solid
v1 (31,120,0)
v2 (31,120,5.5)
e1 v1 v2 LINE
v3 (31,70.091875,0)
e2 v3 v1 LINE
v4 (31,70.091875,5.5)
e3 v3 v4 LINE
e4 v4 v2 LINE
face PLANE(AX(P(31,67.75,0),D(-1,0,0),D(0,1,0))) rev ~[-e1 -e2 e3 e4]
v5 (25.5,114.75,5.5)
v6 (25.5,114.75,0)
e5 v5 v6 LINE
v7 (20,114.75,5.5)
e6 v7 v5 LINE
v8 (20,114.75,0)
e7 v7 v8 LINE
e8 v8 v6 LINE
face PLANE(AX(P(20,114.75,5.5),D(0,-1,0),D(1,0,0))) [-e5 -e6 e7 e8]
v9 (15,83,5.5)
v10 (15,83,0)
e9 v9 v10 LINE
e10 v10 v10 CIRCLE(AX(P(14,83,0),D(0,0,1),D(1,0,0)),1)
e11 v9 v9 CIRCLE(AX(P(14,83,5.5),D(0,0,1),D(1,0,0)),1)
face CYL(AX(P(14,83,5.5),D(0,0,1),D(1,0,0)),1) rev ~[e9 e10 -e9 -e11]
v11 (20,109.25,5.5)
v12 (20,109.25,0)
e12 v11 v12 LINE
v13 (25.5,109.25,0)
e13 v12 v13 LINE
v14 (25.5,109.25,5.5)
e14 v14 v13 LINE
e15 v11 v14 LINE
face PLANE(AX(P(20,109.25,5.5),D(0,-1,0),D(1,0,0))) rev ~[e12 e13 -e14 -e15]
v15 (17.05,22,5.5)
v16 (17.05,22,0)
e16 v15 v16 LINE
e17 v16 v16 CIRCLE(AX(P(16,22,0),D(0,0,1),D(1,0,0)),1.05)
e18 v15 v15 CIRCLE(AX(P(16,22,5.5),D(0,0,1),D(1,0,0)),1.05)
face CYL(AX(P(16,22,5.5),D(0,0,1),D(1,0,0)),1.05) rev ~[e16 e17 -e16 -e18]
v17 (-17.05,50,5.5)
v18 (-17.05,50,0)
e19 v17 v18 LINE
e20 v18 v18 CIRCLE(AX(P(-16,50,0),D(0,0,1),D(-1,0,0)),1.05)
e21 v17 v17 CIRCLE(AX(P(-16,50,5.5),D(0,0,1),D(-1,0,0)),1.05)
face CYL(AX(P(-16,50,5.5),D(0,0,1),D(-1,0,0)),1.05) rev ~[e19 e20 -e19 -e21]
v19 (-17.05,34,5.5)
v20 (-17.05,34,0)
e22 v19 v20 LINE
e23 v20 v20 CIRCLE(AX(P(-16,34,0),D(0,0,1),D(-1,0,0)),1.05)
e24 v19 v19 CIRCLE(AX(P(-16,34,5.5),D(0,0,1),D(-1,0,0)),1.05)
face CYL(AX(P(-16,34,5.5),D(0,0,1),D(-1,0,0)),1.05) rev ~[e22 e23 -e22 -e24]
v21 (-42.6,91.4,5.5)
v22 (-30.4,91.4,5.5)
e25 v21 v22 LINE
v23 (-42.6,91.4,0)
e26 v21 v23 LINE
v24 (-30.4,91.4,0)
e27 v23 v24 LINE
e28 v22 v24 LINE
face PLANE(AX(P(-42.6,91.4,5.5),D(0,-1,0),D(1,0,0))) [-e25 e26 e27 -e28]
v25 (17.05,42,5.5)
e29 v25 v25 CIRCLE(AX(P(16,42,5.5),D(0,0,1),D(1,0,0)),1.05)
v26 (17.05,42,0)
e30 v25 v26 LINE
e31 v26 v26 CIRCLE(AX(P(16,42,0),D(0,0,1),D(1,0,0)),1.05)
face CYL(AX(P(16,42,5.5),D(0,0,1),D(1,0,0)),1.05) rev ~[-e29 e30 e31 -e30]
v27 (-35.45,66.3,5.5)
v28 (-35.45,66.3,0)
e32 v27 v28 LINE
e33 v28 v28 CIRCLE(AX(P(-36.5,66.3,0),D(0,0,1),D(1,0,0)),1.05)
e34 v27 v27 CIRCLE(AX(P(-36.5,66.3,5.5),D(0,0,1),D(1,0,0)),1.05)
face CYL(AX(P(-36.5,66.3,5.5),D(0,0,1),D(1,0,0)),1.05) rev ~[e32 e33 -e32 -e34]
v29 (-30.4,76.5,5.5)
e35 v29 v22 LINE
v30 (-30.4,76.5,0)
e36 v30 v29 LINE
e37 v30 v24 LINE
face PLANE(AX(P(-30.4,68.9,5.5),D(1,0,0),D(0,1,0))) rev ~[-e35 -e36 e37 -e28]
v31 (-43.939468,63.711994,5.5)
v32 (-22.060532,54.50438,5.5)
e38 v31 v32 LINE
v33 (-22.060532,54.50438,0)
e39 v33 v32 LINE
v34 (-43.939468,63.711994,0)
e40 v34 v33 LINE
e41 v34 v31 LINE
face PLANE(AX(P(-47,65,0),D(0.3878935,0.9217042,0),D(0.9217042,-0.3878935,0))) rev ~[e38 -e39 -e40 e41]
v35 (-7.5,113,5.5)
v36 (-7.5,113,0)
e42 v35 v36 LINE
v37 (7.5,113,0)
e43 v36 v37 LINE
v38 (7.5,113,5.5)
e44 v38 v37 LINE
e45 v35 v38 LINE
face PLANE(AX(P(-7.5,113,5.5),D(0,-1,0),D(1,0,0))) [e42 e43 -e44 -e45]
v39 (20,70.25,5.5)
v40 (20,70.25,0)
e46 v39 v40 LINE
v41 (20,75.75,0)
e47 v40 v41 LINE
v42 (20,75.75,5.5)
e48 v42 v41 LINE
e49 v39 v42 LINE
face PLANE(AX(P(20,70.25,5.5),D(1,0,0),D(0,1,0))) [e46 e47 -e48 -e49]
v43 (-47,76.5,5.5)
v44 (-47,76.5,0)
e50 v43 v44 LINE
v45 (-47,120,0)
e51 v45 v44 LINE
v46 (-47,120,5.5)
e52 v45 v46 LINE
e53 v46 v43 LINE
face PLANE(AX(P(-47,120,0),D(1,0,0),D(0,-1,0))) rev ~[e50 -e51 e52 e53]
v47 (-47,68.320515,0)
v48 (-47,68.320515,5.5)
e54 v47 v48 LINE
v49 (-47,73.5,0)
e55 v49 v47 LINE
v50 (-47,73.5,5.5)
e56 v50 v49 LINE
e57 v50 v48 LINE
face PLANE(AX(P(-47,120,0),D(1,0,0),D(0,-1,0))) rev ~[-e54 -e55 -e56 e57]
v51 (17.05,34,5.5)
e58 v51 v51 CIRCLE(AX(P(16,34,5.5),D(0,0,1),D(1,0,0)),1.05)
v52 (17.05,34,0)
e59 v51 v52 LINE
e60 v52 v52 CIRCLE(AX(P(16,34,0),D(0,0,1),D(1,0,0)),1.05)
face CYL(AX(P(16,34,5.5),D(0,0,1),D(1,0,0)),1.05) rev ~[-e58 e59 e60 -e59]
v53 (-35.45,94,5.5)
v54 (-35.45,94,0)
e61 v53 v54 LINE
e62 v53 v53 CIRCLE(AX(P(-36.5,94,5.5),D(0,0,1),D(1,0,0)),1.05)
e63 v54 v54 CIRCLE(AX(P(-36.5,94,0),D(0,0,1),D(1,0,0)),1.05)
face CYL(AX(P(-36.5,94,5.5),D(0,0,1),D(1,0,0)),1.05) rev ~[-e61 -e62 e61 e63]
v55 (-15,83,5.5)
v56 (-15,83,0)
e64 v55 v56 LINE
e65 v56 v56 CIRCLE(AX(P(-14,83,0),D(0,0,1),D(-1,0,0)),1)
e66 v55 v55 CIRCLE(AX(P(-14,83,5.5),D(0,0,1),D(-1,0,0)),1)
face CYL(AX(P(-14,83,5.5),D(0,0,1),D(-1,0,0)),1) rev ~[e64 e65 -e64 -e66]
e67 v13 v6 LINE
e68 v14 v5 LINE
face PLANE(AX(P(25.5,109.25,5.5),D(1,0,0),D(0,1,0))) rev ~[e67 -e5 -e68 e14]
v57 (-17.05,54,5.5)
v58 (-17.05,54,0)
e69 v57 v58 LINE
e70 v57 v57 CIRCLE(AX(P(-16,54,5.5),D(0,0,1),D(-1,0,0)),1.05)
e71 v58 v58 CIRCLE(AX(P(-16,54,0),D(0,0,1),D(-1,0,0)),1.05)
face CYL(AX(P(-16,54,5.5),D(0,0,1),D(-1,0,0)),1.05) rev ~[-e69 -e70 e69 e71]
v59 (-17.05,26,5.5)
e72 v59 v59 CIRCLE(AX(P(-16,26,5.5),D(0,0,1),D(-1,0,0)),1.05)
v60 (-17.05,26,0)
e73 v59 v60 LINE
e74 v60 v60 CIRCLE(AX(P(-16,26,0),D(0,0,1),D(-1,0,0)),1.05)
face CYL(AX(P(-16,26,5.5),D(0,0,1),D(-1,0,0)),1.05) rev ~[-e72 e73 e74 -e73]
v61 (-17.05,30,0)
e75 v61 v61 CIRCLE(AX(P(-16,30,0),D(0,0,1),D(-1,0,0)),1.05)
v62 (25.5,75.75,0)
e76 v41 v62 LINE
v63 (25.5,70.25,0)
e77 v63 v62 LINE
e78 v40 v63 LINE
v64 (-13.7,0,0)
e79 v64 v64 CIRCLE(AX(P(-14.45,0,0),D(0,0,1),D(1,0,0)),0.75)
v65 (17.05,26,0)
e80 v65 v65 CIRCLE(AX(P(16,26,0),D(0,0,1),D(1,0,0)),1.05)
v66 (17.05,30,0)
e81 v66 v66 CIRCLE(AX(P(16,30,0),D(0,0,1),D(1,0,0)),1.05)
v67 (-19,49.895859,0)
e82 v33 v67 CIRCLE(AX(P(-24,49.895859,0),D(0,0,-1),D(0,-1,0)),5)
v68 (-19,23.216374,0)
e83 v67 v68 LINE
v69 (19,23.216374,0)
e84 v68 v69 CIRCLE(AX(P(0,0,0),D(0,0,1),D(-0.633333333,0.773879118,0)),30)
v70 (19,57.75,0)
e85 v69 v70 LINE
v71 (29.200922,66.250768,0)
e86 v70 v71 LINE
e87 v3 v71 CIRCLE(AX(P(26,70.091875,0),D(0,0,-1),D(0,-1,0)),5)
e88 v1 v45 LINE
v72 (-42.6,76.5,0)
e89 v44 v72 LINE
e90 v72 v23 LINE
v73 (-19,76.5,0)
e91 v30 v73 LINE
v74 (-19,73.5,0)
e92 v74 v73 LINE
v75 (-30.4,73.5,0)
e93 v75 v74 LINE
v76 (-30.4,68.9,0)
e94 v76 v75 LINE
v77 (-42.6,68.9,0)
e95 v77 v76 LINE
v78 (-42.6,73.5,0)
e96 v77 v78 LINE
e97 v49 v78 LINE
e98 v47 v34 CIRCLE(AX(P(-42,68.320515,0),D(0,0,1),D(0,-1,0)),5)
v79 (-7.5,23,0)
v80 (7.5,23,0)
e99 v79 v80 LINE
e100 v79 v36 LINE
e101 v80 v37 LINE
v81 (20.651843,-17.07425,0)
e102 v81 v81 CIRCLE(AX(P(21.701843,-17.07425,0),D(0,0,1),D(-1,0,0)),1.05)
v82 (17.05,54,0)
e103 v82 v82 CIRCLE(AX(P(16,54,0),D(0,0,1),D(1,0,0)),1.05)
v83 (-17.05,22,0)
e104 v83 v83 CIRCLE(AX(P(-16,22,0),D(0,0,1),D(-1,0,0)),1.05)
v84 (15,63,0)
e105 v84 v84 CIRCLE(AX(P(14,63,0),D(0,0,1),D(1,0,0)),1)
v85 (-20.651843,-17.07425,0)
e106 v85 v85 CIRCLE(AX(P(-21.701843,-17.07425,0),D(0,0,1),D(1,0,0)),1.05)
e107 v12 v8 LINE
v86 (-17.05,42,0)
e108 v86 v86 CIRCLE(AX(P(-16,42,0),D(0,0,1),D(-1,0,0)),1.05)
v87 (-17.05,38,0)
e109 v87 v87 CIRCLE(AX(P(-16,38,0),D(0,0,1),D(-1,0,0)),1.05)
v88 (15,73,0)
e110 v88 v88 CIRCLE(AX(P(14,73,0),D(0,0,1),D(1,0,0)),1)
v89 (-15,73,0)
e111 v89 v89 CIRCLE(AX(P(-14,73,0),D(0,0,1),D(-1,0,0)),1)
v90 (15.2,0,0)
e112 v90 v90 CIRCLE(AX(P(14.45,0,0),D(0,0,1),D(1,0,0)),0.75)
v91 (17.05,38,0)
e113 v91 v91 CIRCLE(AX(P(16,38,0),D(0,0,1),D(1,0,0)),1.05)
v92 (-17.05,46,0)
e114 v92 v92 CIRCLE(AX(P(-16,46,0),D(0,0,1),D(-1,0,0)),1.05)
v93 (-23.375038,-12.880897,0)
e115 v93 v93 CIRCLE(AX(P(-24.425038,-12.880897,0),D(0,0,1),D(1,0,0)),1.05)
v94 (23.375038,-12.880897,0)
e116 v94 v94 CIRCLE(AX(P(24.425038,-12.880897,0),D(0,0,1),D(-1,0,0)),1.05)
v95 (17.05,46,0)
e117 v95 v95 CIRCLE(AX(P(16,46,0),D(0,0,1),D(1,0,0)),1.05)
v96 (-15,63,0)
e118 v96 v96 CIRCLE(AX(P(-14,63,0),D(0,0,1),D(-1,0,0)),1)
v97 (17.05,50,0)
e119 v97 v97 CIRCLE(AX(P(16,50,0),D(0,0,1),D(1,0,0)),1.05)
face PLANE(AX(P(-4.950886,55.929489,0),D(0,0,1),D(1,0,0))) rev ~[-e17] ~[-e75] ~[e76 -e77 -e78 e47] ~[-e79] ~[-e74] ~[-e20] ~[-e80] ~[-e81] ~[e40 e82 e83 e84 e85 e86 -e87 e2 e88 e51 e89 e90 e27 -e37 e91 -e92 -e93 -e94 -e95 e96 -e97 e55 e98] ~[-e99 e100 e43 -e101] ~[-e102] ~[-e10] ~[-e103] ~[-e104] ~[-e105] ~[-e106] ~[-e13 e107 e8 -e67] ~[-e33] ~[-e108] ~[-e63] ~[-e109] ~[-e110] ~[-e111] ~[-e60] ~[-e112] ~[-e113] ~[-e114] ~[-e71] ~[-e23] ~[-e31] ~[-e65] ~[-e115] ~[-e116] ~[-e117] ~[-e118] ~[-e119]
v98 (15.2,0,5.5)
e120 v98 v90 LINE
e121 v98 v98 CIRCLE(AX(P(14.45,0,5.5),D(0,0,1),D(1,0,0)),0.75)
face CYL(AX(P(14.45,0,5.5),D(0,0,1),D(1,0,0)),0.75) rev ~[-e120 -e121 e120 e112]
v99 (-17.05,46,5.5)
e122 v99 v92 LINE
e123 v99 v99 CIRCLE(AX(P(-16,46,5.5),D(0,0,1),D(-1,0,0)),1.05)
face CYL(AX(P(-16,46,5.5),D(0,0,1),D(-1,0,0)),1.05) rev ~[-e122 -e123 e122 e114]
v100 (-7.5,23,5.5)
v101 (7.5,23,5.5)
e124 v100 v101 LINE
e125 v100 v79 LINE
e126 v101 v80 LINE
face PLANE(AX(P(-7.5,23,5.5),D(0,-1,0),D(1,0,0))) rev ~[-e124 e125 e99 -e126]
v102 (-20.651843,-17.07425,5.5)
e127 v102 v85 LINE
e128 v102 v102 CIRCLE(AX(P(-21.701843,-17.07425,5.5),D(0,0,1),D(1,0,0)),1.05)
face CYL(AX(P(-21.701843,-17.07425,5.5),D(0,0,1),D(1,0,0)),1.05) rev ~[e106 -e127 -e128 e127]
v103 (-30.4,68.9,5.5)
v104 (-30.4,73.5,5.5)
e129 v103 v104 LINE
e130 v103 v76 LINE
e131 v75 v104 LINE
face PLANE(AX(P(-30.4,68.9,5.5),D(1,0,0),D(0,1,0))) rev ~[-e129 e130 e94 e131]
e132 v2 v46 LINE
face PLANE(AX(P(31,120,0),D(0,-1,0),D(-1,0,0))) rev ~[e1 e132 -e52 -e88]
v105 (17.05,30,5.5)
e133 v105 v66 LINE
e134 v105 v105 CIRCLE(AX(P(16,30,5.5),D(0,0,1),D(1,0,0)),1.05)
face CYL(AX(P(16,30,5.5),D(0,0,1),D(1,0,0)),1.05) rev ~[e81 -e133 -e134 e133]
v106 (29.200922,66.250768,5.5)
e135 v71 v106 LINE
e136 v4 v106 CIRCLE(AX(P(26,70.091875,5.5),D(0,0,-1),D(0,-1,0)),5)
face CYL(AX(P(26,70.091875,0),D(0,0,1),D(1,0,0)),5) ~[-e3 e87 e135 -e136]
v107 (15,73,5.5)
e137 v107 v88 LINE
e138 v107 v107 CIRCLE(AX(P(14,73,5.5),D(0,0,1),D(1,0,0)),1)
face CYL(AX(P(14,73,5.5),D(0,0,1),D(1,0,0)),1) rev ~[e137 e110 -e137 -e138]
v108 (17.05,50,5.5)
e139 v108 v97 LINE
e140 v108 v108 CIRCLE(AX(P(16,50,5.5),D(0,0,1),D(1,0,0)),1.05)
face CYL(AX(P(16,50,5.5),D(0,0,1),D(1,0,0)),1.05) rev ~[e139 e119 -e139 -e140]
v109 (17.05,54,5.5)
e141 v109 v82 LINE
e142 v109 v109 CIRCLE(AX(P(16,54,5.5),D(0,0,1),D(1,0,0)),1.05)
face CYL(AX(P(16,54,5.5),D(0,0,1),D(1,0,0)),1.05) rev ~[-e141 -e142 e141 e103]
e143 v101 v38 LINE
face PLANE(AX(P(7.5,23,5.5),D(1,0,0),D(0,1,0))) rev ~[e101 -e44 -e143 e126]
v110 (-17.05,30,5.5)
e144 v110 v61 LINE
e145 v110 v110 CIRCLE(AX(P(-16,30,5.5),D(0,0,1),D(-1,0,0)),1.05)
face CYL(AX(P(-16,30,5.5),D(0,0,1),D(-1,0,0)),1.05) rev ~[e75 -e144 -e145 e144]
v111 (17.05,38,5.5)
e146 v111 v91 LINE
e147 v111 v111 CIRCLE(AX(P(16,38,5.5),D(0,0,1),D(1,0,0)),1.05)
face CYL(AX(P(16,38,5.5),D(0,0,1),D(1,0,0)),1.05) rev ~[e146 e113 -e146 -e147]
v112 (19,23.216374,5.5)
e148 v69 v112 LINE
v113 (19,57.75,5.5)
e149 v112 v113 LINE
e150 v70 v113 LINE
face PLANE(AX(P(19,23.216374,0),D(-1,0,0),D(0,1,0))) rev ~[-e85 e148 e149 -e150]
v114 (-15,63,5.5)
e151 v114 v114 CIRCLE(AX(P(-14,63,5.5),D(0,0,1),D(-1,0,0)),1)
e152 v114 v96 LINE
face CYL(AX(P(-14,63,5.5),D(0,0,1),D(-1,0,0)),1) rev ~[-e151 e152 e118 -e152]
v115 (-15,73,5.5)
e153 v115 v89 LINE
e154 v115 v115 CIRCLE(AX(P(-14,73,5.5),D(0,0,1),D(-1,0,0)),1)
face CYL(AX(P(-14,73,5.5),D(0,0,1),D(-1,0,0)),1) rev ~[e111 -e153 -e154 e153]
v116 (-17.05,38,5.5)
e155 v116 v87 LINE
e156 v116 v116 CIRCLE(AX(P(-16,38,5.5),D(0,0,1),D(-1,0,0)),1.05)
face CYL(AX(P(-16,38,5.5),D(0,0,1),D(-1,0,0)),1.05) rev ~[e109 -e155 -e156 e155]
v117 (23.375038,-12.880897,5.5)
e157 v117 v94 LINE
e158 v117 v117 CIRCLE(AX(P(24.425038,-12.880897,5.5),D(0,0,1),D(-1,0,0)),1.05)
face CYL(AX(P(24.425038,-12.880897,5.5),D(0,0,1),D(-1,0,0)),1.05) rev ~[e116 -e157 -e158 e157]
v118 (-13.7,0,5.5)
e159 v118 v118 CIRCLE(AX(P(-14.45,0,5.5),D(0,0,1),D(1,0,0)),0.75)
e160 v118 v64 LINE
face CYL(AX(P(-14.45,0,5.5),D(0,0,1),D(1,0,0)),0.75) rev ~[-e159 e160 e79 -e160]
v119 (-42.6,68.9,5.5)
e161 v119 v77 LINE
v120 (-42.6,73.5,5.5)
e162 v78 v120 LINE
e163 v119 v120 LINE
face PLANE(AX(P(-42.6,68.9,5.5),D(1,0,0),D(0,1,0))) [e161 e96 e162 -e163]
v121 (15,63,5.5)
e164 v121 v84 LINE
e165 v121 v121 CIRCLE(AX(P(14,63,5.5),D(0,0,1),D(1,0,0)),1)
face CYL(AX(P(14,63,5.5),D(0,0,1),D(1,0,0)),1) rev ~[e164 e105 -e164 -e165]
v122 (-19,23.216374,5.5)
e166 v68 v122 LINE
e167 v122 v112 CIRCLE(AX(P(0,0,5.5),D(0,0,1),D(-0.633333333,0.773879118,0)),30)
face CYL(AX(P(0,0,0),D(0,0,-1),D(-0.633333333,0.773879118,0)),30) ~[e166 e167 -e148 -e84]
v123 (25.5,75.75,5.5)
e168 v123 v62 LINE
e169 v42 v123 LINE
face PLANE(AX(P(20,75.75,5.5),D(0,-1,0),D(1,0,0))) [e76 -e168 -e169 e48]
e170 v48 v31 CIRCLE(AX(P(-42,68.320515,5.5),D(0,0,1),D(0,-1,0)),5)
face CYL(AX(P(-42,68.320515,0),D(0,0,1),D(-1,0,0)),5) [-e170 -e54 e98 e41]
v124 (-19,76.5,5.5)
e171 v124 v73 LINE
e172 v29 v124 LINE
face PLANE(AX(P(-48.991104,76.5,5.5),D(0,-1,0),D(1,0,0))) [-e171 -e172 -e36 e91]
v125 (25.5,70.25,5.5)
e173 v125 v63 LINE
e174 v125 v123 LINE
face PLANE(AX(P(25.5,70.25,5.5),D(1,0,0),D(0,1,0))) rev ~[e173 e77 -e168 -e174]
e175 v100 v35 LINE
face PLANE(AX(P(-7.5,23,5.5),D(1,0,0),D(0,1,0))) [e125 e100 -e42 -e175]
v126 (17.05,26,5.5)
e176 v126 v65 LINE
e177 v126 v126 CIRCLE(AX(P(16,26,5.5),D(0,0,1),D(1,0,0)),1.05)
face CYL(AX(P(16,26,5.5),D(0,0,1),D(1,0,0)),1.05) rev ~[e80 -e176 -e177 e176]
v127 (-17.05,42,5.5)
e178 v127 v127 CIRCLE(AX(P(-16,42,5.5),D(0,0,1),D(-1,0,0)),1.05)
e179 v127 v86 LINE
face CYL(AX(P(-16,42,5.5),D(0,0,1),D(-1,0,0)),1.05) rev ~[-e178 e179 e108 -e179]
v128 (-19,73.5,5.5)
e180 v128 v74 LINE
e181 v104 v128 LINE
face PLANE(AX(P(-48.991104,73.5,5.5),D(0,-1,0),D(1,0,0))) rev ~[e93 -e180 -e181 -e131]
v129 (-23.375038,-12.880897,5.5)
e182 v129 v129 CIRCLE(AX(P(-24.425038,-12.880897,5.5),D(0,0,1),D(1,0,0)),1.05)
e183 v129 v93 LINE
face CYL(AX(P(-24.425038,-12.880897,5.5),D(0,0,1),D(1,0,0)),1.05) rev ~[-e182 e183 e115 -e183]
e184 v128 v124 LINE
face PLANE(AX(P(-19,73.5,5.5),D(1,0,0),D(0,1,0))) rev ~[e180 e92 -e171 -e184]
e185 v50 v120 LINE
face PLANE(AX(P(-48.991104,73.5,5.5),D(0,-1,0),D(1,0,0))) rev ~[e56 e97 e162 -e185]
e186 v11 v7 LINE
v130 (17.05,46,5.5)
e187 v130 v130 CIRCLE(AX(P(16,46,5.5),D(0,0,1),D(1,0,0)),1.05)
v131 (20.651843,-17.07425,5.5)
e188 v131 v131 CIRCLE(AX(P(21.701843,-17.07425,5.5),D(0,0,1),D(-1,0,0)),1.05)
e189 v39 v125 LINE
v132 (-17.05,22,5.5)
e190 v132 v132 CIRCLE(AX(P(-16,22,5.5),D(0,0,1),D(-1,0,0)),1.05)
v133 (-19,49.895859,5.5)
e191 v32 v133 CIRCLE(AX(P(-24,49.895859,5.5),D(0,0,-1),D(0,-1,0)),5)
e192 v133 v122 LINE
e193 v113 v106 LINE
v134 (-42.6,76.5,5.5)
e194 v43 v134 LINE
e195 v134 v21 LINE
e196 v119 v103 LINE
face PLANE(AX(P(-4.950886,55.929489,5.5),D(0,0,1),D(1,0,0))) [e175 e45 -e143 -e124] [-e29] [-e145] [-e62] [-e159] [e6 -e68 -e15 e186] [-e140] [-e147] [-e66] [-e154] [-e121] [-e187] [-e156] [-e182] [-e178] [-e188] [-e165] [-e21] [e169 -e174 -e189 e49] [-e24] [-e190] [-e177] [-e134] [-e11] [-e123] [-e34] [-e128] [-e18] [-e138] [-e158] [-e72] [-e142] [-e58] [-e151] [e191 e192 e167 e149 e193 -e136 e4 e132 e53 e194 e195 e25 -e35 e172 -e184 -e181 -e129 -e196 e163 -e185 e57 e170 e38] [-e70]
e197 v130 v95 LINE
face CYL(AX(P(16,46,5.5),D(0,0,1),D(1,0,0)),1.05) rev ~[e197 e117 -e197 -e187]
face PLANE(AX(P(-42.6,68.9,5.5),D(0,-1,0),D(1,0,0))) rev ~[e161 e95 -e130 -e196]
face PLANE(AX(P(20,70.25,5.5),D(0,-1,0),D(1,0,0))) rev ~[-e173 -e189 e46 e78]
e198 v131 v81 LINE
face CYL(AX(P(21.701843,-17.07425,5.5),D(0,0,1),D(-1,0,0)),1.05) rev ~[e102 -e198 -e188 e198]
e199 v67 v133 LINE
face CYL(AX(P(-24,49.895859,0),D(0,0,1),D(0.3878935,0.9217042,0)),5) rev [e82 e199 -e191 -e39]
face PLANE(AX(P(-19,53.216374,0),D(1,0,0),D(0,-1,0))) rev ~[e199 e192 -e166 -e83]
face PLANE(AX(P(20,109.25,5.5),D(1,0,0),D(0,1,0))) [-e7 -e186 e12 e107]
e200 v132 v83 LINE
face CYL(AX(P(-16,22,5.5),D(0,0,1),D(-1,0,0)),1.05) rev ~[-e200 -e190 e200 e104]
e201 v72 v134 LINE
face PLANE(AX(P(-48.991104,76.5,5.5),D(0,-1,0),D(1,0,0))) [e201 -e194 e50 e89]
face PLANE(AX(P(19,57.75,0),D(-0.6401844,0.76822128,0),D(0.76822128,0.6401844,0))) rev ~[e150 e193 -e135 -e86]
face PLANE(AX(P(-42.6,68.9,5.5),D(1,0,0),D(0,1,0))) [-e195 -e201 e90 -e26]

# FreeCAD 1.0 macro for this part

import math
import FreeCAD as App
import Part
import Sketcher
Q = App.Units.Quantity


def edges_at(feature, points):
    """Names of the edges that pass closest to the given points."""
    edges = feature.Shape.Edges
    near = lambda p: min(range(len(edges)), key=lambda i: edges[i].distToShape(Part.Vertex(*p))[0])
    return sorted({f"Edge{near(p) + 1}" for p in points})

doc = App.newDocument("Part")
body = doc.addObject("PartDesign::Body", "Body")

# Sketch on XY plane
sketch1 = doc.addObject("Sketcher::SketchObject", "Sketch")
body.addObject(sketch1)
sketch1.AttachmentSupport = (doc.XY_Plane, [""])
sketch1.MapMode = "FlatFace"
sketch1.addGeometry(Part.LineSegment(App.Vector(31, 120, 0), App.Vector(-47, 120, 0)), False)
sketch1.addGeometry(Part.LineSegment(App.Vector(-47, 120, 0), App.Vector(-47, 65, 0)), False)
sketch1.addGeometry(Part.LineSegment(App.Vector(-47, 65, 0), App.Vector(-19, 53, 0)), False)
sketch1.addGeometry(Part.LineSegment(App.Vector(-19, 53, 0), App.Vector(-19, 23, 0)), False)
sketch1.addGeometry(Part.ArcOfCircle(Part.Circle(App.Vector(0, 0, 0), App.Vector(0, 0, 1), 30), math.radians(129), math.radians(411)), False)
sketch1.addGeometry(Part.LineSegment(App.Vector(19, 23, 0), App.Vector(19, 58, 0)), False)
sketch1.addGeometry(Part.LineSegment(App.Vector(19, 58, 0), App.Vector(31, 68, 0)), False)
sketch1.addGeometry(Part.LineSegment(App.Vector(31, 68, 0), App.Vector(31, 120, 0)), False)
sketch1.addConstraint(Sketcher.Constraint("Coincident", 0, 2, 1, 1))
sketch1.addConstraint(Sketcher.Constraint("Coincident", 1, 2, 2, 1))
sketch1.addConstraint(Sketcher.Constraint("Coincident", 2, 2, 3, 1))
sketch1.addConstraint(Sketcher.Constraint("Coincident", 3, 2, 4, 1))
sketch1.addConstraint(Sketcher.Constraint("Coincident", 4, 2, 5, 1))
sketch1.addConstraint(Sketcher.Constraint("Coincident", 5, 2, 6, 1))
sketch1.addConstraint(Sketcher.Constraint("Coincident", 6, 2, 7, 1))
sketch1.addConstraint(Sketcher.Constraint("Coincident", 7, 2, 0, 1))
sketch1.addConstraint(Sketcher.Constraint("Horizontal", 0))
sketch1.addConstraint(Sketcher.Constraint("Vertical", 1))
sketch1.addConstraint(Sketcher.Constraint("Vertical", 3))
sketch1.addConstraint(Sketcher.Constraint("Vertical", 5))
sketch1.addConstraint(Sketcher.Constraint("Vertical", 7))
sketch1.addConstraint(Sketcher.Constraint("Coincident", 4, 3, -1, 1))
sketch1.addConstraint(Sketcher.Constraint("Horizontal", 3, 2, 4, 2))
sketch1.addConstraint(Sketcher.Constraint("Radius", 4, Q("30 mm")))
sketch1.addConstraint(Sketcher.Constraint("DistanceX", 0, 2, 0, 1, Q("78 mm")))
sketch1.addConstraint(Sketcher.Constraint("DistanceY", 1, 2, 1, 1, Q("55 mm")))
sketch1.addConstraint(Sketcher.Constraint("DistanceY", 3, 2, 3, 1, Q("30 mm")))
sketch1.addConstraint(Sketcher.Constraint("DistanceX", 0, 2, -1, 1, Q("47 mm")))
sketch1.addConstraint(Sketcher.Constraint("DistanceY", -1, 1, 0, 2, Q("120 mm")))
sketch1.addConstraint(Sketcher.Constraint("DistanceX", 2, 2, -1, 1, Q("19 mm")))
sketch1.addConstraint(Sketcher.Constraint("DistanceY", 5, 2, 6, 2, Q("10 mm")))
sketch1.addConstraint(Sketcher.Constraint("DistanceY", 7, 1, 7, 2, Q("52.25 mm")))
pad1 = doc.addObject("PartDesign::Pad", "Pad")
body.addObject(pad1)
pad1.Profile = sketch1
pad1.Length = 5.5

# Sketch on XY plane
sketch2 = doc.addObject("Sketcher::SketchObject", "Sketch001")
body.addObject(sketch2)
sketch2.AttachmentSupport = (doc.XY_Plane, [""])
sketch2.MapMode = "FlatFace"
sketch2.AttachmentOffset = App.Placement(App.Vector(0, 0, 5.5), App.Rotation())
sketch2.addGeometry(Part.Circle(App.Vector(14, 63, 0), App.Vector(0, 0, 1), 1), False)
sketch2.addGeometry(Part.Circle(App.Vector(14, 83, 0), App.Vector(0, 0, 1), 1), False)
sketch2.addGeometry(Part.Circle(App.Vector(14, 73, 0), App.Vector(0, 0, 1), 1), False)
sketch2.addGeometry(Part.Circle(App.Vector(-14, 83, 0), App.Vector(0, 0, 1), 1), False)
sketch2.addGeometry(Part.Circle(App.Vector(-14, 73, 0), App.Vector(0, 0, 1), 1), False)
sketch2.addGeometry(Part.Circle(App.Vector(-14, 63, 0), App.Vector(0, 0, 1), 1), False)
sketch2.addGeometry(Part.LineSegment(App.Vector(20, 114.8, 0), App.Vector(20, 109.2, 0)), False)
sketch2.addGeometry(Part.LineSegment(App.Vector(20, 109.2, 0), App.Vector(25.5, 109.2, 0)), False)
sketch2.addGeometry(Part.LineSegment(App.Vector(25.5, 109.2, 0), App.Vector(25.5, 114.8, 0)), False)
sketch2.addGeometry(Part.LineSegment(App.Vector(25.5, 114.8, 0), App.Vector(20, 114.8, 0)), False)
sketch2.addGeometry(Part.LineSegment(App.Vector(20, 75.8, 0), App.Vector(20, 70.2, 0)), False)
sketch2.addGeometry(Part.LineSegment(App.Vector(20, 70.2, 0), App.Vector(25.5, 70.2, 0)), False)
sketch2.addGeometry(Part.LineSegment(App.Vector(25.5, 70.2, 0), App.Vector(25.5, 75.8, 0)), False)
sketch2.addGeometry(Part.LineSegment(App.Vector(25.5, 75.8, 0), App.Vector(20, 75.8, 0)), False)
sketch2.addConstraint(Sketcher.Constraint("Coincident", 6, 2, 7, 1))
sketch2.addConstraint(Sketcher.Constraint("Coincident", 7, 2, 8, 1))
sketch2.addConstraint(Sketcher.Constraint("Coincident", 8, 2, 9, 1))
sketch2.addConstraint(Sketcher.Constraint("Coincident", 9, 2, 6, 1))
sketch2.addConstraint(Sketcher.Constraint("Coincident", 10, 2, 11, 1))
sketch2.addConstraint(Sketcher.Constraint("Coincident", 11, 2, 12, 1))
sketch2.addConstraint(Sketcher.Constraint("Coincident", 12, 2, 13, 1))
sketch2.addConstraint(Sketcher.Constraint("Coincident", 13, 2, 10, 1))
sketch2.addConstraint(Sketcher.Constraint("Vertical", 6))
sketch2.addConstraint(Sketcher.Constraint("Horizontal", 7))
sketch2.addConstraint(Sketcher.Constraint("Vertical", 8))
sketch2.addConstraint(Sketcher.Constraint("Horizontal", 9))
sketch2.addConstraint(Sketcher.Constraint("Vertical", 10))
sketch2.addConstraint(Sketcher.Constraint("Horizontal", 11))
sketch2.addConstraint(Sketcher.Constraint("Vertical", 12))
sketch2.addConstraint(Sketcher.Constraint("Horizontal", 13))
sketch2.addConstraint(Sketcher.Constraint("Equal", 0, 1))
sketch2.addConstraint(Sketcher.Constraint("Equal", 1, 2))
sketch2.addConstraint(Sketcher.Constraint("Equal", 2, 3))
sketch2.addConstraint(Sketcher.Constraint("Equal", 3, 4))
sketch2.addConstraint(Sketcher.Constraint("Equal", 4, 5))
sketch2.addConstraint(Sketcher.Constraint("Symmetric", 1, 3, 3, 3, -2))
sketch2.addConstraint(Sketcher.Constraint("Symmetric", 2, 3, 4, 3, -2))
sketch2.addConstraint(Sketcher.Constraint("Symmetric", 0, 3, 5, 3, -2))
sketch2.addConstraint(Sketcher.Constraint("Vertical", 0, 3, 1, 3))
sketch2.addConstraint(Sketcher.Constraint("Vertical", 1, 3, 2, 3))
sketch2.addConstraint(Sketcher.Constraint("Vertical", 9, 2, 10, 2))
sketch2.addConstraint(Sketcher.Constraint("Vertical", 8, 2, 11, 2))
sketch2.addConstraint(Sketcher.Constraint("Equal", 13, 6))
sketch2.addConstraint(Sketcher.Constraint("Equal", 8, 10))
sketch2.addConstraint(Sketcher.Constraint("Diameter", 0, Q("2 mm")))
sketch2.addConstraint(Sketcher.Constraint("DistanceX", 7, 1, 7, 2, Q("5.5 mm")))
sketch2.addConstraint(Sketcher.Constraint("DistanceX", -1, 1, 0, 3, Q("14 mm")))
sketch2.addConstraint(Sketcher.Constraint("DistanceY", -1, 1, 0, 3, Q("63 mm")))
sketch2.addConstraint(Sketcher.Constraint("DistanceY", -1, 1, 1, 3, Q("83 mm")))
sketch2.addConstraint(Sketcher.Constraint("DistanceY", -1, 1, 2, 3, Q("73 mm")))
sketch2.addConstraint(Sketcher.Constraint("DistanceX", -1, 1, 6, 2, Q("20 mm")))
sketch2.addConstraint(Sketcher.Constraint("DistanceY", 11, 2, 7, 2, Q("39 mm")))
sketch2.addConstraint(Sketcher.Constraint("DistanceY", -1, 1, 6, 2, Q("109.25 mm")))
pocket1 = doc.addObject("PartDesign::Pocket", "Pocket")
body.addObject(pocket1)
pocket1.Profile = sketch2
pocket1.Type = "ThroughAll"
doc.recompute()

fillet = doc.addObject("PartDesign::Fillet", "Fillet")
body.addObject(fillet)
fillet.Base = (pocket1, edges_at(pocket1, [(-47, 65, 2.75)]))
fillet.Radius = 5
doc.recompute()

fillet2 = doc.addObject("PartDesign::Fillet", "Fillet001")
body.addObject(fillet2)
fillet2.Base = (fillet, edges_at(fillet, [(-19, 53.216, 2.75)]))
fillet2.Radius = 5

# Sketch on XY plane
sketch3 = doc.addObject("Sketcher::SketchObject", "Sketch002")
body.addObject(sketch3)
sketch3.AttachmentSupport = (doc.XY_Plane, [""])
sketch3.MapMode = "FlatFace"
sketch3.AttachmentOffset = App.Placement(App.Vector(0, 0, 5.5), App.Rotation())
sketch3.addGeometry(Part.Circle(App.Vector(14.4, 0, 0), App.Vector(0, 0, 1), 0.8), False)
sketch3.addGeometry(Part.Circle(App.Vector(-14.4, 0, 0), App.Vector(0, 0, 1), 0.8), False)
sketch3.addConstraint(Sketcher.Constraint("Equal", 0, 1))
sketch3.addConstraint(Sketcher.Constraint("Symmetric", 0, 3, 1, 3, -1, 1))
sketch3.addConstraint(Sketcher.Constraint("PointOnObject", 0, 3, -1))
sketch3.addConstraint(Sketcher.Constraint("Diameter", 0, Q("1.5 mm")))
sketch3.addConstraint(Sketcher.Constraint("DistanceX", 1, 3, 0, 3, Q("28.9 mm")))
pocket2 = doc.addObject("PartDesign::Pocket", "Pocket001")
body.addObject(pocket2)
pocket2.Profile = sketch3
pocket2.Type = "ThroughAll"

# Sketch on XY plane
sketch4 = doc.addObject("Sketcher::SketchObject", "Sketch003")
body.addObject(sketch4)
sketch4.AttachmentSupport = (doc.XY_Plane, [""])
sketch4.MapMode = "FlatFace"
sketch4.AttachmentOffset = App.Placement(App.Vector(0, 0, 5.5), App.Rotation())
sketch4.addGeometry(Part.Circle(App.Vector(-24.4, -12.9, 0), App.Vector(0, 0, 1), 1.1), False)
sketch4.addGeometry(Part.Circle(App.Vector(-21.7, -17.1, 0), App.Vector(0, 0, 1), 1.1), False)
sketch4.addGeometry(Part.Circle(App.Vector(24.4, -12.9, 0), App.Vector(0, 0, 1), 1.1), False)
sketch4.addGeometry(Part.Circle(App.Vector(21.7, -17.1, 0), App.Vector(0, 0, 1), 1.1), False)
sketch4.addConstraint(Sketcher.Constraint("Equal", 0, 1))
sketch4.addConstraint(Sketcher.Constraint("Equal", 1, 2))
sketch4.addConstraint(Sketcher.Constraint("Equal", 2, 3))
sketch4.addConstraint(Sketcher.Constraint("Symmetric", 0, 3, 2, 3, -2))
sketch4.addConstraint(Sketcher.Constraint("Symmetric", 1, 3, 3, 3, -2))
sketch4.addConstraint(Sketcher.Constraint("Diameter", 0, Q("2.1 mm")))
sketch4.addConstraint(Sketcher.Constraint("DistanceX", 0, 3, -1, 1, Q("24.425038 mm")))
sketch4.addConstraint(Sketcher.Constraint("DistanceY", 1, 3, -1, 1, Q("17.07425 mm")))
sketch4.addConstraint(Sketcher.Constraint("DistanceX", 1, 3, 2, 3, Q("46.126881 mm")))
sketch4.addConstraint(Sketcher.Constraint("DistanceY", 0, 3, -1, 1, Q("12.880897 mm")))
pocket3 = doc.addObject("PartDesign::Pocket", "Pocket002")
body.addObject(pocket3)
pocket3.Profile = sketch4
pocket3.Type = "ThroughAll"

# Sketch on XY plane
sketch5 = doc.addObject("Sketcher::SketchObject", "Sketch004")
body.addObject(sketch5)
sketch5.AttachmentSupport = (doc.XY_Plane, [""])
sketch5.MapMode = "FlatFace"
sketch5.AttachmentOffset = App.Placement(App.Vector(0, 0, 5.5), App.Rotation())
sketch5.addGeometry(Part.LineSegment(App.Vector(-8, 113, 0), App.Vector(-8, 23, 0)), False)
sketch5.addGeometry(Part.LineSegment(App.Vector(-8, 23, 0), App.Vector(8, 23, 0)), False)
sketch5.addGeometry(Part.LineSegment(App.Vector(8, 23, 0), App.Vector(8, 113, 0)), False)
sketch5.addGeometry(Part.LineSegment(App.Vector(8, 113, 0), App.Vector(-8, 113, 0)), False)
sketch5.addConstraint(Sketcher.Constraint("Coincident", 0, 2, 1, 1))
sketch5.addConstraint(Sketcher.Constraint("Coincident", 1, 2, 2, 1))
sketch5.addConstraint(Sketcher.Constraint("Coincident", 2, 2, 3, 1))
sketch5.addConstraint(Sketcher.Constraint("Coincident", 3, 2, 0, 1))
sketch5.addConstraint(Sketcher.Constraint("Vertical", 0))
sketch5.addConstraint(Sketcher.Constraint("Horizontal", 1))
sketch5.addConstraint(Sketcher.Constraint("Vertical", 2))
sketch5.addConstraint(Sketcher.Constraint("Horizontal", 3))
sketch5.addConstraint(Sketcher.Constraint("DistanceX", 1, 1, 1, 2, Q("15 mm")))
sketch5.addConstraint(Sketcher.Constraint("DistanceY", 0, 2, 0, 1, Q("90 mm")))
sketch5.addConstraint(Sketcher.Constraint("DistanceY", -1, 1, 0, 2, Q("23 mm")))
sketch5.addConstraint(Sketcher.Constraint("DistanceX", 0, 2, -1, 1, Q("7.5 mm")))
pocket4 = doc.addObject("PartDesign::Pocket", "Pocket003")
body.addObject(pocket4)
pocket4.Profile = sketch5
pocket4.Type = "ThroughAll"

# Sketch on XY plane
sketch6 = doc.addObject("Sketcher::SketchObject", "Sketch005")
body.addObject(sketch6)
sketch6.AttachmentSupport = (doc.XY_Plane, [""])
sketch6.MapMode = "FlatFace"
sketch6.AttachmentOffset = App.Placement(App.Vector(0, 0, 5.5), App.Rotation())
sketch6.addGeometry(Part.LineSegment(App.Vector(-49, 76.5, 0), App.Vector(-49, 73.5, 0)), False)
sketch6.addGeometry(Part.LineSegment(App.Vector(-49, 73.5, 0), App.Vector(-19, 73.5, 0)), False)
sketch6.addGeometry(Part.LineSegment(App.Vector(-19, 73.5, 0), App.Vector(-19, 76.5, 0)), False)
sketch6.addGeometry(Part.LineSegment(App.Vector(-19, 76.5, 0), App.Vector(-49, 76.5, 0)), False)
sketch6.addConstraint(Sketcher.Constraint("Coincident", 0, 2, 1, 1))
sketch6.addConstraint(Sketcher.Constraint("Coincident", 1, 2, 2, 1))
sketch6.addConstraint(Sketcher.Constraint("Coincident", 2, 2, 3, 1))
sketch6.addConstraint(Sketcher.Constraint("Coincident", 3, 2, 0, 1))
sketch6.addConstraint(Sketcher.Constraint("Vertical", 0))
sketch6.addConstraint(Sketcher.Constraint("Horizontal", 1))
sketch6.addConstraint(Sketcher.Constraint("Vertical", 2))
sketch6.addConstraint(Sketcher.Constraint("Horizontal", 3))
sketch6.addConstraint(Sketcher.Constraint("DistanceY", 0, 2, 0, 1, Q("3 mm")))
sketch6.addConstraint(Sketcher.Constraint("DistanceX", 1, 2, -1, 1, Q("19 mm")))
sketch6.addConstraint(Sketcher.Constraint("DistanceY", -1, 1, 0, 2, Q("73.5 mm")))
sketch6.addConstraint(Sketcher.Constraint("DistanceX", 1, 1, 1, 2, Q("29.991104 mm")))
pocket5 = doc.addObject("PartDesign::Pocket", "Pocket004")
body.addObject(pocket5)
pocket5.Profile = sketch6
pocket5.Type = "ThroughAll"

# Sketch on XY plane
sketch7 = doc.addObject("Sketcher::SketchObject", "Sketch006")
body.addObject(sketch7)
sketch7.AttachmentSupport = (doc.XY_Plane, [""])
sketch7.MapMode = "FlatFace"
sketch7.AttachmentOffset = App.Placement(App.Vector(0, 0, 5.5), App.Rotation())
sketch7.addGeometry(Part.Circle(App.Vector(-36.5, 66.3, 0), App.Vector(0, 0, 1), 1.1), False)
sketch7.addGeometry(Part.Circle(App.Vector(-36.5, 94, 0), App.Vector(0, 0, 1), 1.1), False)
sketch7.addGeometry(Part.LineSegment(App.Vector(-42.6, 91.4, 0), App.Vector(-42.6, 68.9, 0)), False)
sketch7.addGeometry(Part.LineSegment(App.Vector(-42.6, 68.9, 0), App.Vector(-30.4, 68.9, 0)), False)
sketch7.addGeometry(Part.LineSegment(App.Vector(-30.4, 68.9, 0), App.Vector(-30.4, 91.4, 0)), False)
sketch7.addGeometry(Part.LineSegment(App.Vector(-30.4, 91.4, 0), App.Vector(-42.6, 91.4, 0)), False)
sketch7.addConstraint(Sketcher.Constraint("Coincident", 2, 2, 3, 1))
sketch7.addConstraint(Sketcher.Constraint("Coincident", 3, 2, 4, 1))
sketch7.addConstraint(Sketcher.Constraint("Coincident", 4, 2, 5, 1))
sketch7.addConstraint(Sketcher.Constraint("Coincident", 5, 2, 2, 1))
sketch7.addConstraint(Sketcher.Constraint("Vertical", 2))
sketch7.addConstraint(Sketcher.Constraint("Horizontal", 3))
sketch7.addConstraint(Sketcher.Constraint("Vertical", 4))
sketch7.addConstraint(Sketcher.Constraint("Horizontal", 5))
sketch7.addConstraint(Sketcher.Constraint("Equal", 0, 1))
sketch7.addConstraint(Sketcher.Constraint("Vertical", 0, 3, 1, 3))
sketch7.addConstraint(Sketcher.Constraint("Diameter", 0, Q("2.1 mm")))
sketch7.addConstraint(Sketcher.Constraint("DistanceX", 3, 1, 3, 2, Q("12.2 mm")))
sketch7.addConstraint(Sketcher.Constraint("DistanceY", 2, 2, 2, 1, Q("22.5 mm")))
sketch7.addConstraint(Sketcher.Constraint("DistanceY", -1, 1, 1, 3, Q("94 mm")))
sketch7.addConstraint(Sketcher.Constraint("DistanceX", 0, 3, -1, 1, Q("36.5 mm")))
sketch7.addConstraint(Sketcher.Constraint("DistanceY", -1, 1, 0, 3, Q("66.3 mm")))
sketch7.addConstraint(Sketcher.Constraint("DistanceX", 2, 2, -1, 1, Q("42.6 mm")))
sketch7.addConstraint(Sketcher.Constraint("DistanceY", -1, 1, 2, 2, Q("68.9 mm")))
pocket6 = doc.addObject("PartDesign::Pocket", "Pocket005")
body.addObject(pocket6)
pocket6.Profile = sketch7
pocket6.Type = "ThroughAll"
doc.recompute()

fillet3 = doc.addObject("PartDesign::Fillet", "Fillet002")
body.addObject(fillet3)
fillet3.Base = (pocket6, edges_at(pocket6, [(31, 67.75, 2.75)]))
fillet3.Radius = 5

# Sketch on XY plane
sketch8 = doc.addObject("Sketcher::SketchObject", "Sketch007")
body.addObject(sketch8)
sketch8.AttachmentSupport = (doc.XY_Plane, [""])
sketch8.MapMode = "FlatFace"
sketch8.AttachmentOffset = App.Placement(App.Vector(0, 0, 5.5), App.Rotation())
sketch8.addGeometry(Part.Circle(App.Vector(16, 22, 0), App.Vector(0, 0, 1), 1.1), False)
sketch8.addGeometry(Part.Circle(App.Vector(16, 26, 0), App.Vector(0, 0, 1), 1.1), False)
sketch8.addGeometry(Part.Circle(App.Vector(16, 30, 0), App.Vector(0, 0, 1), 1.1), False)
sketch8.addGeometry(Part.Circle(App.Vector(16, 34, 0), App.Vector(0, 0, 1), 1.1), False)
sketch8.addGeometry(Part.Circle(App.Vector(16, 38, 0), App.Vector(0, 0, 1), 1.1), False)
sketch8.addGeometry(Part.Circle(App.Vector(16, 42, 0), App.Vector(0, 0, 1), 1.1), False)
sketch8.addGeometry(Part.Circle(App.Vector(16, 46, 0), App.Vector(0, 0, 1), 1.1), False)
sketch8.addGeometry(Part.Circle(App.Vector(16, 50, 0), App.Vector(0, 0, 1), 1.1), False)
sketch8.addGeometry(Part.Circle(App.Vector(-16, 50, 0), App.Vector(0, 0, 1), 1.1), False)
sketch8.addGeometry(Part.Circle(App.Vector(-16, 46, 0), App.Vector(0, 0, 1), 1.1), False)
sketch8.addGeometry(Part.Circle(App.Vector(-16, 42, 0), App.Vector(0, 0, 1), 1.1), False)
sketch8.addGeometry(Part.Circle(App.Vector(-16, 38, 0), App.Vector(0, 0, 1), 1.1), False)
sketch8.addGeometry(Part.Circle(App.Vector(-16, 34, 0), App.Vector(0, 0, 1), 1.1), False)
sketch8.addGeometry(Part.Circle(App.Vector(-16, 30, 0), App.Vector(0, 0, 1), 1.1), False)
sketch8.addGeometry(Part.Circle(App.Vector(-16, 26, 0), App.Vector(0, 0, 1), 1.1), False)
sketch8.addGeometry(Part.Circle(App.Vector(-16, 22, 0), App.Vector(0, 0, 1), 1.1), False)
sketch8.addGeometry(Part.Circle(App.Vector(16, 54, 0), App.Vector(0, 0, 1), 1.1), False)
sketch8.addGeometry(Part.Circle(App.Vector(-16, 54, 0), App.Vector(0, 0, 1), 1.1), False)
sketch8.addConstraint(Sketcher.Constraint("Equal", 0, 1))
sketch8.addConstraint(Sketcher.Constraint("Equal", 1, 2))
sketch8.addConstraint(Sketcher.Constraint("Equal", 2, 3))
sketch8.addConstraint(Sketcher.Constraint("Equal", 3, 4))
sketch8.addConstraint(Sketcher.Constraint("Equal", 4, 5))
sketch8.addConstraint(Sketcher.Constraint("Equal", 5, 6))
sketch8.addConstraint(Sketcher.Constraint("Equal", 6, 7))
sketch8.addConstraint(Sketcher.Constraint("Equal", 7, 8))
sketch8.addConstraint(Sketcher.Constraint("Equal", 8, 9))
sketch8.addConstraint(Sketcher.Constraint("Equal", 9, 10))
sketch8.addConstraint(Sketcher.Constraint("Equal", 10, 11))
sketch8.addConstraint(Sketcher.Constraint("Equal", 11, 12))
sketch8.addConstraint(Sketcher.Constraint("Equal", 12, 13))
sketch8.addConstraint(Sketcher.Constraint("Equal", 13, 14))
sketch8.addConstraint(Sketcher.Constraint("Equal", 14, 15))
sketch8.addConstraint(Sketcher.Constraint("Equal", 15, 16))
sketch8.addConstraint(Sketcher.Constraint("Equal", 16, 17))
sketch8.addConstraint(Sketcher.Constraint("Symmetric", 7, 3, 8, 3, -2))
sketch8.addConstraint(Sketcher.Constraint("Symmetric", 6, 3, 9, 3, -2))
sketch8.addConstraint(Sketcher.Constraint("Symmetric", 5, 3, 10, 3, -2))
sketch8.addConstraint(Sketcher.Constraint("Symmetric", 4, 3, 11, 3, -2))
sketch8.addConstraint(Sketcher.Constraint("Symmetric", 3, 3, 12, 3, -2))
sketch8.addConstraint(Sketcher.Constraint("Symmetric", 2, 3, 13, 3, -2))
sketch8.addConstraint(Sketcher.Constraint("Symmetric", 1, 3, 14, 3, -2))
sketch8.addConstraint(Sketcher.Constraint("Symmetric", 0, 3, 15, 3, -2))
sketch8.addConstraint(Sketcher.Constraint("Symmetric", 16, 3, 17, 3, -2))
sketch8.addConstraint(Sketcher.Constraint("Vertical", 0, 3, 1, 3))
sketch8.addConstraint(Sketcher.Constraint("Vertical", 1, 3, 2, 3))
sketch8.addConstraint(Sketcher.Constraint("Vertical", 2, 3, 3, 3))
sketch8.addConstraint(Sketcher.Constraint("Vertical", 3, 3, 4, 3))
sketch8.addConstraint(Sketcher.Constraint("Vertical", 4, 3, 5, 3))
sketch8.addConstraint(Sketcher.Constraint("Vertical", 5, 3, 6, 3))
sketch8.addConstraint(Sketcher.Constraint("Vertical", 6, 3, 7, 3))
sketch8.addConstraint(Sketcher.Constraint("Vertical", 7, 3, 16, 3))
sketch8.addConstraint(Sketcher.Constraint("Diameter", 0, Q("2.1 mm")))
sketch8.addConstraint(Sketcher.Constraint("DistanceX", -1, 1, 0, 3, Q("16 mm")))
sketch8.addConstraint(Sketcher.Constraint("DistanceY", -1, 1, 0, 3, Q("22 mm")))
sketch8.addConstraint(Sketcher.Constraint("DistanceY", -1, 1, 1, 3, Q("26 mm")))
sketch8.addConstraint(Sketcher.Constraint("DistanceY", -1, 1, 2, 3, Q("30 mm")))
sketch8.addConstraint(Sketcher.Constraint("DistanceY", -1, 1, 3, 3, Q("34 mm")))
sketch8.addConstraint(Sketcher.Constraint("DistanceY", -1, 1, 4, 3, Q("38 mm")))
sketch8.addConstraint(Sketcher.Constraint("DistanceY", -1, 1, 5, 3, Q("42 mm")))
sketch8.addConstraint(Sketcher.Constraint("DistanceY", -1, 1, 6, 3, Q("46 mm")))
sketch8.addConstraint(Sketcher.Constraint("DistanceY", -1, 1, 7, 3, Q("50 mm")))
sketch8.addConstraint(Sketcher.Constraint("DistanceY", -1, 1, 16, 3, Q("54 mm")))
pocket7 = doc.addObject("PartDesign::Pocket", "Pocket006")
body.addObject(pocket7)
pocket7.Profile = sketch8
pocket7.Type = "ThroughAll"

doc.recompute()
